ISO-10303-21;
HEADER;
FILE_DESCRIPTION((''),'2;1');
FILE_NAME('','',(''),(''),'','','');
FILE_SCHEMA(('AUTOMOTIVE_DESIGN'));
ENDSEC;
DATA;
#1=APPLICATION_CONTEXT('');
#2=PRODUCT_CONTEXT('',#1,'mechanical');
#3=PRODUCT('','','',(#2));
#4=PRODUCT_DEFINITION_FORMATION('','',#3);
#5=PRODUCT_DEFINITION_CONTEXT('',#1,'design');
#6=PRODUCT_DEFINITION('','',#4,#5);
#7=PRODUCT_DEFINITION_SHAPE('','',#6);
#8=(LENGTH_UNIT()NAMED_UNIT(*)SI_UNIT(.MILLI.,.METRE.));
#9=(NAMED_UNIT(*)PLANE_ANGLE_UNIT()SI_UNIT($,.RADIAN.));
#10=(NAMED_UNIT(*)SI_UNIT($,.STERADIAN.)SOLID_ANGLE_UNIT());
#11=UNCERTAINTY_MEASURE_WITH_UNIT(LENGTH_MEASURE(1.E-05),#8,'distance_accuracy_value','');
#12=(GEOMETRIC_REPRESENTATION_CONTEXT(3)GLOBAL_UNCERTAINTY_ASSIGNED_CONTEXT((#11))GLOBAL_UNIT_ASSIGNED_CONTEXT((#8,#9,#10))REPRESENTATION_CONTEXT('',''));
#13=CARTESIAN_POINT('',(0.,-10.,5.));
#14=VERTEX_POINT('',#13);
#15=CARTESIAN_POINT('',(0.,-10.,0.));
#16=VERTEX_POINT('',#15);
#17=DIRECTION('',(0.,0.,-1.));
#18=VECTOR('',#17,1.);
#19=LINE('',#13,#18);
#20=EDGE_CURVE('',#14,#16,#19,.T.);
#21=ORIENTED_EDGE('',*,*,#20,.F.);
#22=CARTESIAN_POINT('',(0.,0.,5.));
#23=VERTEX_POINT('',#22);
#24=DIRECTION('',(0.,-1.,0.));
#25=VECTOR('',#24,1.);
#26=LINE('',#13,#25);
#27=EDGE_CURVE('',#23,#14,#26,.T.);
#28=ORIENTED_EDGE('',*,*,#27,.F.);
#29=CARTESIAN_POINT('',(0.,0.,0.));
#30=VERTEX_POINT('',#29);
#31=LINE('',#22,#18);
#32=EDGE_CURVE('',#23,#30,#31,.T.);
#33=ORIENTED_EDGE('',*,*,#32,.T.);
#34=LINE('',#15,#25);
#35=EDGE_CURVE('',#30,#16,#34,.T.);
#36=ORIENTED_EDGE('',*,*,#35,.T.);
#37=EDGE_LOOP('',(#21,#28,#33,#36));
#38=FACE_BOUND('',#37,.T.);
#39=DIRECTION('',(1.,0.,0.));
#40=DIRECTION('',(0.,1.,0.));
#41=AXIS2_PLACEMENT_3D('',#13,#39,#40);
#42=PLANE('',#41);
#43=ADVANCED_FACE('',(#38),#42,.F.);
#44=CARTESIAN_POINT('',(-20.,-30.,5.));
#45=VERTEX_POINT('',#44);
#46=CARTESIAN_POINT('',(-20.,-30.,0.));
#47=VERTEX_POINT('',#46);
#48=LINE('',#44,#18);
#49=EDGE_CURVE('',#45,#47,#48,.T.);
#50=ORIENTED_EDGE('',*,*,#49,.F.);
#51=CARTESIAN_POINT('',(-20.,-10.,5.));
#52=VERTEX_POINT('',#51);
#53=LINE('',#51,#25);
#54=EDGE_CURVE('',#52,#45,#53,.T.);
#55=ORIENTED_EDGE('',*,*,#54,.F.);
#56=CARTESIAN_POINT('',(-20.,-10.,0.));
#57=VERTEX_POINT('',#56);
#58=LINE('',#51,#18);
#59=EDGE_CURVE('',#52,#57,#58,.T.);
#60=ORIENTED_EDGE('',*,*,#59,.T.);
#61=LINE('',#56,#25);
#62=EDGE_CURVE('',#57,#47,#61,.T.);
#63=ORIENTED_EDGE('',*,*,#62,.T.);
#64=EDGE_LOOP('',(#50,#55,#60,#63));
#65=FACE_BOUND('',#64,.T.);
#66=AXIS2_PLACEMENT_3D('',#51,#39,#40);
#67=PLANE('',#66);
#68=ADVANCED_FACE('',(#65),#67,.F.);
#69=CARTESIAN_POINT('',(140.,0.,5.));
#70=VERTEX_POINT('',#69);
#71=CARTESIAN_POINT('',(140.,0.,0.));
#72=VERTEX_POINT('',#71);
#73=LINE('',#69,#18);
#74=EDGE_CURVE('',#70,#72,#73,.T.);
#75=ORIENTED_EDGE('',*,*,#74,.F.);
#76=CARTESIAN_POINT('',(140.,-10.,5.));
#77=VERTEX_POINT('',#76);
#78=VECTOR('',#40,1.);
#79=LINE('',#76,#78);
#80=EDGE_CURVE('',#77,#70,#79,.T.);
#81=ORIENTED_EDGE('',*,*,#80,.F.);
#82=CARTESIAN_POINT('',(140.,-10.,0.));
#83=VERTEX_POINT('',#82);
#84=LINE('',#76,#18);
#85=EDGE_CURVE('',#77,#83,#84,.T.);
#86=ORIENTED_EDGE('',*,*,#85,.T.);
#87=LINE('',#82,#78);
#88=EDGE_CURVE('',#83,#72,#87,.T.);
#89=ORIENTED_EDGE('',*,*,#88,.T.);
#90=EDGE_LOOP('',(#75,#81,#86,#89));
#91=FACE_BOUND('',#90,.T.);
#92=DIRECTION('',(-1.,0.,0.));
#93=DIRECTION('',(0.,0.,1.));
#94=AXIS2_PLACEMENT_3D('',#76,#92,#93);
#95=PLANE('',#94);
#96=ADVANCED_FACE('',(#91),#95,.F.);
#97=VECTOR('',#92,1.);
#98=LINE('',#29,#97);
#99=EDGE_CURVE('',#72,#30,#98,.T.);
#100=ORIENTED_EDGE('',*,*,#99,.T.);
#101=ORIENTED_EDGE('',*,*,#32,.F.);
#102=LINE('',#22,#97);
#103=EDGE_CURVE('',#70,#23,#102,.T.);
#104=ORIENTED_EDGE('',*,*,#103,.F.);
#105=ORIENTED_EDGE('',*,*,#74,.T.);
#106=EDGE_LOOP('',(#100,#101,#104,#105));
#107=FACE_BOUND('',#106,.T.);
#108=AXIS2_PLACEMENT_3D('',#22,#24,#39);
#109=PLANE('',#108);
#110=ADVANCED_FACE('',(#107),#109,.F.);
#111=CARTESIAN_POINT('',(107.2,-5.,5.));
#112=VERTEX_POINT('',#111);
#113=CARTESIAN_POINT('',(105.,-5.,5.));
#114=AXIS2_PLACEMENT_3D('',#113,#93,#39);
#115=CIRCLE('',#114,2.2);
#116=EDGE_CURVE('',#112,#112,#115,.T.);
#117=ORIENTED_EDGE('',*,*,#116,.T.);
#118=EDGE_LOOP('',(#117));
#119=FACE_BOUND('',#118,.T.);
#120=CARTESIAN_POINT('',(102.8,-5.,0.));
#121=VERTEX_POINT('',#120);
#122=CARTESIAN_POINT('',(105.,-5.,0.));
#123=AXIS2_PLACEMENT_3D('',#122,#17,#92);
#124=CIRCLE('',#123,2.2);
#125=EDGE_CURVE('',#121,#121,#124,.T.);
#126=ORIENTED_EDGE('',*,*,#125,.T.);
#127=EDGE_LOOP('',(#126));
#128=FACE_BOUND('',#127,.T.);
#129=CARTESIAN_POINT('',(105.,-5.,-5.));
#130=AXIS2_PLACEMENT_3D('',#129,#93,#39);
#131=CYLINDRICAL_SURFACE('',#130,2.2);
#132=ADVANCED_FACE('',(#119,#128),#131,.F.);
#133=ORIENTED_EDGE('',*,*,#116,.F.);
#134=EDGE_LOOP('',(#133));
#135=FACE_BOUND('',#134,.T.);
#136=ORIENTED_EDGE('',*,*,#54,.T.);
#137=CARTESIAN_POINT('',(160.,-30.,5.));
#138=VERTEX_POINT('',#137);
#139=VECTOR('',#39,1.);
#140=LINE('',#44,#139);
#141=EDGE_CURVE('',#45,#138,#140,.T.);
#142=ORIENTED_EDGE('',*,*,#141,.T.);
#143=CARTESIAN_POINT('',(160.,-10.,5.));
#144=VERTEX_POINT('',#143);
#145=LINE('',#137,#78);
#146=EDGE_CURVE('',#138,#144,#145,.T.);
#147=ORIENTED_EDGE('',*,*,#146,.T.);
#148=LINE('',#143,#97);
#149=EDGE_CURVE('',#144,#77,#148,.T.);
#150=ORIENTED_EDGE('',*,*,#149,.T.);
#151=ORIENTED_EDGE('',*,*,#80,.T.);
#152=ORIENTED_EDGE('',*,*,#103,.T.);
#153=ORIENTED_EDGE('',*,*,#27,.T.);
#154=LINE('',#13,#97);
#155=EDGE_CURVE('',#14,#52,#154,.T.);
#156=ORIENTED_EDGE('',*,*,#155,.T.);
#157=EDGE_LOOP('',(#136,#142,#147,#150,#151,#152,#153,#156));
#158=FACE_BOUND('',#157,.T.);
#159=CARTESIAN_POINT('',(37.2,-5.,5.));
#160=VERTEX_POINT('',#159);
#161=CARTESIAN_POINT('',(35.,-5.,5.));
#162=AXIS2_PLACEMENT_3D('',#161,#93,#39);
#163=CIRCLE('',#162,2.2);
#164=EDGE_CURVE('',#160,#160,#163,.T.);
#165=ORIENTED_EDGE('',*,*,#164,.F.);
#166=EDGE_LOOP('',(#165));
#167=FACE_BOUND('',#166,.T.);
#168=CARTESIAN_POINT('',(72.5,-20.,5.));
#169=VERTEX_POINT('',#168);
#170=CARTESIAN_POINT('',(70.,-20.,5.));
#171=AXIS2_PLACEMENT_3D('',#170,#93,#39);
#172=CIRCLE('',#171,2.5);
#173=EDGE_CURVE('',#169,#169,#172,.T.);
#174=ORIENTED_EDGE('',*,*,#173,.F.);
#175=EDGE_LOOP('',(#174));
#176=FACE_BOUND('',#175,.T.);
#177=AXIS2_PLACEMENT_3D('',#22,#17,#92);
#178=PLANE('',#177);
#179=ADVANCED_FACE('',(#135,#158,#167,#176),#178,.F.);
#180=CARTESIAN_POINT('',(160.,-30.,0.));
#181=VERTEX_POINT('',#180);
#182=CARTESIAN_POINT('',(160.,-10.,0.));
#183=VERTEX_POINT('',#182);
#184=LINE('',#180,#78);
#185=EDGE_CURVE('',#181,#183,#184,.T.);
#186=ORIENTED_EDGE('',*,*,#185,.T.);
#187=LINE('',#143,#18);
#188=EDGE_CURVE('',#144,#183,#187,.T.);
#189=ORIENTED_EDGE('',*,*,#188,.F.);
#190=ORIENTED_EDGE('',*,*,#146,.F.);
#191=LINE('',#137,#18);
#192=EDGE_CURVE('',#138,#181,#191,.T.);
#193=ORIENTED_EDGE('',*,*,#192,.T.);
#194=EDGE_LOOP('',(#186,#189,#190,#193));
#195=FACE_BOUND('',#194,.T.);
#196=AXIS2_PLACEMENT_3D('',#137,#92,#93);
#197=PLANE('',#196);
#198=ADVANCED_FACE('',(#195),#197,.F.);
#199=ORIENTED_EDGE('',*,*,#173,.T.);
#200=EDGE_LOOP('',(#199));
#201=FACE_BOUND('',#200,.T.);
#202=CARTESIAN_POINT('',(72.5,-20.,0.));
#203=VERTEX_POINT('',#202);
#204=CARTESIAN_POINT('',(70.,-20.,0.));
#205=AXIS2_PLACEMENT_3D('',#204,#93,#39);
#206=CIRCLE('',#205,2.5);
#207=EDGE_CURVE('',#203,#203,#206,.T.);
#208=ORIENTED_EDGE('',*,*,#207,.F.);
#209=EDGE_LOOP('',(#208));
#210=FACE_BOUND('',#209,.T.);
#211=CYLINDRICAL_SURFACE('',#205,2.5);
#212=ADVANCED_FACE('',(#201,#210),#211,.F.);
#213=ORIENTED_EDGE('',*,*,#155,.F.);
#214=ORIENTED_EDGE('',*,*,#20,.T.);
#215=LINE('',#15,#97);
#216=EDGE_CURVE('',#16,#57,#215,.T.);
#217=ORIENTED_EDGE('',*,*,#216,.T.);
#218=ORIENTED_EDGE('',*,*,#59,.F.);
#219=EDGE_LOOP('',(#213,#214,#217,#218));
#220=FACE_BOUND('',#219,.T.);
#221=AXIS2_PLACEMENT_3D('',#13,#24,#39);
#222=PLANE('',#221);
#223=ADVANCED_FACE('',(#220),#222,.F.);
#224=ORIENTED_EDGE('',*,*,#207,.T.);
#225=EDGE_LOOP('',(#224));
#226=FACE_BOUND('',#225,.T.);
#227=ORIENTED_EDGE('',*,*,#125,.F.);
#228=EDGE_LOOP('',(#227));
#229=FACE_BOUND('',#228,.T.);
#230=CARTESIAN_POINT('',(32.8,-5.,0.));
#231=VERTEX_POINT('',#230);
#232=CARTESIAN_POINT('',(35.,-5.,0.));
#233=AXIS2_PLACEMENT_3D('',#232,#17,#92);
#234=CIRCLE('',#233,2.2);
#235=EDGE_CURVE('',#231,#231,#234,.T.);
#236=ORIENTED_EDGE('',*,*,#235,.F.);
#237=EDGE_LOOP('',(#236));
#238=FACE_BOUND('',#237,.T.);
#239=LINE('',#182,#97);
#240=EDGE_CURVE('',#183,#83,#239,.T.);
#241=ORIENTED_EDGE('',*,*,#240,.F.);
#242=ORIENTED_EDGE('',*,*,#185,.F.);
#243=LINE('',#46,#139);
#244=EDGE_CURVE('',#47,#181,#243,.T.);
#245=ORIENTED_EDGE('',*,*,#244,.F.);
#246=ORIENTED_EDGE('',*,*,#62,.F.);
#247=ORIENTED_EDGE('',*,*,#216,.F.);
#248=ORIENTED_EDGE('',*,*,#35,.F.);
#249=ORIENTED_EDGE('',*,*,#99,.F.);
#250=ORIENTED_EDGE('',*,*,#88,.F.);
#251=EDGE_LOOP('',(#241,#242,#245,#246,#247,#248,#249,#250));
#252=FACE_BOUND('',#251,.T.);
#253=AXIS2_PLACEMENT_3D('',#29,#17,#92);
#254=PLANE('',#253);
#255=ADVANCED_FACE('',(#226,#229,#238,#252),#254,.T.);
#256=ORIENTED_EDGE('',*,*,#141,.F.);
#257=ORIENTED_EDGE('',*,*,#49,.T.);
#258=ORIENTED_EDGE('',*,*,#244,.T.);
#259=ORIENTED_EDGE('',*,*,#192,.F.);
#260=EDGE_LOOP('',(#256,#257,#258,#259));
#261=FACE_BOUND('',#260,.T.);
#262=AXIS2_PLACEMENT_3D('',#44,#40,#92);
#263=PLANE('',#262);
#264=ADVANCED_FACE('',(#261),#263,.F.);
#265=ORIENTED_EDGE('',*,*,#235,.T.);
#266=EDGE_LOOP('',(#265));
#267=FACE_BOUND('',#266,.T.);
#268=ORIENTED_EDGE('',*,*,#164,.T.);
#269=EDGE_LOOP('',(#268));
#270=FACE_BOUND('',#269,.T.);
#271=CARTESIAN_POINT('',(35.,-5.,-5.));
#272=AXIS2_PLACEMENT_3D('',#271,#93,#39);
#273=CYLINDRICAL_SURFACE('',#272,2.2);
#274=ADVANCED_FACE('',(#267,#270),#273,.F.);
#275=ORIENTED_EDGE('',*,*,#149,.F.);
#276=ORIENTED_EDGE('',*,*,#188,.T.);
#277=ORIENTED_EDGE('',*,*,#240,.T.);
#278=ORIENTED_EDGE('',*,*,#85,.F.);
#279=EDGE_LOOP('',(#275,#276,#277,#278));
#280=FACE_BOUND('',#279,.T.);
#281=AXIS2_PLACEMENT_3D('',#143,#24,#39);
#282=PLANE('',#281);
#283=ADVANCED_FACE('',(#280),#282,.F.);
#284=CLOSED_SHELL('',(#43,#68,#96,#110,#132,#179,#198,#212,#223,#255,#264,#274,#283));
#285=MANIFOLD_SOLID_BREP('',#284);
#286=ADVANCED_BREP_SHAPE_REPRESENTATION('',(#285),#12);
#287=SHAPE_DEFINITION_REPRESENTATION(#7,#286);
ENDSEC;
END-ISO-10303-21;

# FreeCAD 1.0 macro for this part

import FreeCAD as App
import Part
import Sketcher
Q = App.Units.Quantity

doc = App.newDocument("Part")
params = doc.addObject("Spreadsheet::Sheet", "Params")
for row, (alias, value) in enumerate([
    ("sketch1_width", "20 mm"),
    ("sketch1_width2", "180 mm"),
    ("sketch1_height", "10 mm"),
    ("pad1_length", "5 mm"),
    ("sketch2_diameter", "4.4 mm"),
    ("pocket1_length", "10 mm"),
    ("sketch3_diameter", "5 mm"),
], start=1):
    params.set(f"A{row}", alias)
    params.set(f"B{row}", "=" + value)
    params.setAlias(f"B{row}", alias)

body = doc.addObject("PartDesign::Body", "Body")

# Sketch on XY plane
sketch1 = doc.addObject("Sketcher::SketchObject", "Sketch")
body.addObject(sketch1)
sketch1.AttachmentSupport = (doc.XY_Plane, [""])
sketch1.MapMode = "FlatFace"
sketch1.addGeometry([
    Part.LineSegment(App.Vector(0, -10, 0), App.Vector(-20, -10, 0)),  # 0
    Part.LineSegment(App.Vector(-20, -10, 0), App.Vector(-20, -30, 0)),  # 1
    Part.LineSegment(App.Vector(-20, -30, 0), App.Vector(160, -30, 0)),  # 2
    Part.LineSegment(App.Vector(160, -30, 0), App.Vector(160, -10, 0)),  # 3
    Part.LineSegment(App.Vector(160, -10, 0), App.Vector(140, -10, 0)),  # 4
    Part.LineSegment(App.Vector(140, -10, 0), App.Vector(140, 0, 0)),  # 5
    Part.LineSegment(App.Vector(140, 0, 0), App.Vector(0, 0, 0)),  # 6
    Part.LineSegment(App.Vector(0, 0, 0), App.Vector(0, -10, 0)),  # 7
], False)
sketch1.addConstraint([
    Sketcher.Constraint("Coincident", 0, 2, 1, 1),
    Sketcher.Constraint("Coincident", 1, 2, 2, 1),
    Sketcher.Constraint("Coincident", 2, 2, 3, 1),
    Sketcher.Constraint("Coincident", 3, 2, 4, 1),
    Sketcher.Constraint("Coincident", 4, 2, 5, 1),
    Sketcher.Constraint("Coincident", 5, 2, 6, 1),
    Sketcher.Constraint("Coincident", 6, 2, 7, 1),
    Sketcher.Constraint("Coincident", 7, 2, 0, 1),
    Sketcher.Constraint("Horizontal", 0),
    Sketcher.Constraint("Vertical", 1),
    Sketcher.Constraint("Horizontal", 2),
    Sketcher.Constraint("Vertical", 3),
    Sketcher.Constraint("Horizontal", 4),
    Sketcher.Constraint("Vertical", 5),
    Sketcher.Constraint("Horizontal", 6),
    Sketcher.Constraint("Vertical", 7),
    Sketcher.Constraint("Coincident", 6, 2, -1, 1),
    Sketcher.Constraint("Horizontal", 0, 2, 3, 2),
    Sketcher.Constraint("Equal", 0, 4),
    Sketcher.Constraint("Equal", 4, 1),
    Sketcher.Constraint("DistanceX", 0, 2, 0, 1, Q("20 mm")),
    Sketcher.Constraint("DistanceX", 2, 1, 2, 2, Q("180 mm")),
    Sketcher.Constraint("DistanceY", 5, 1, 5, 2, Q("10 mm")),
])
sketch1.setExpression("Constraints[20]", "Params.sketch1_width")
sketch1.setExpression("Constraints[21]", "Params.sketch1_width2")
sketch1.setExpression("Constraints[22]", "Params.sketch1_height")
pad1 = doc.addObject("PartDesign::Pad", "Pad")
body.addObject(pad1)
pad1.Profile = sketch1
pad1.setExpression("Length", "Params.pad1_length")

# Sketch on XY plane
sketch2 = doc.addObject("Sketcher::SketchObject", "Sketch001")
body.addObject(sketch2)
sketch2.AttachmentSupport = (doc.XY_Plane, [""])
sketch2.MapMode = "FlatFace"
sketch2.AttachmentOffset = App.Placement(App.Vector(0, 0, 5), App.Rotation())
sketch2.addGeometry([
    Part.Circle(App.Vector(35, -5, 0), App.Vector(0, 0, 1), 2.2),
    Part.Circle(App.Vector(105, -5, 0), App.Vector(0, 0, 1), 2.2),
], False)
sketch2.addConstraint([
    Sketcher.Constraint("Equal", 0, 1),
    Sketcher.Constraint("Horizontal", 0, 3, 1, 3),
    Sketcher.Constraint("Diameter", 0, Q("4.4 mm")),
    Sketcher.Constraint("DistanceX", -1, 1, 0, 3, Q("35 mm")),
    Sketcher.Constraint("DistanceY", 0, 3, -1, 1, Q("5 mm")),
    Sketcher.Constraint("DistanceX", -1, 1, 1, 3, Q("105 mm")),
])
sketch2.setExpression("Constraints[2]", "Params.sketch2_diameter")
pocket1 = doc.addObject("PartDesign::Pocket", "Pocket")
body.addObject(pocket1)
pocket1.Profile = sketch2
pocket1.setExpression("Length", "Params.pocket1_length")

# Sketch on XY plane
sketch3 = doc.addObject("Sketcher::SketchObject", "Sketch002")
body.addObject(sketch3)
sketch3.AttachmentSupport = (doc.XY_Plane, [""])
sketch3.MapMode = "FlatFace"
sketch3.AttachmentOffset = App.Placement(App.Vector(0, 0, 5), App.Rotation())
sketch3.addGeometry(Part.Circle(App.Vector(70, -20, 0), App.Vector(0, 0, 1), 2.5), False)
sketch3.addConstraint([
    Sketcher.Constraint("Diameter", 0, Q("5 mm")),
    Sketcher.Constraint("DistanceX", -1, 1, 0, 3, Q("70 mm")),
    Sketcher.Constraint("DistanceY", 0, 3, -1, 1, Q("20 mm")),
])
sketch3.setExpression("Constraints[0]", "Params.sketch3_diameter")
pocket2 = doc.addObject("PartDesign::Pocket", "Pocket001")
body.addObject(pocket2)
pocket2.Profile = sketch3
pocket2.Type = "ThroughAll"

doc.recompute()
